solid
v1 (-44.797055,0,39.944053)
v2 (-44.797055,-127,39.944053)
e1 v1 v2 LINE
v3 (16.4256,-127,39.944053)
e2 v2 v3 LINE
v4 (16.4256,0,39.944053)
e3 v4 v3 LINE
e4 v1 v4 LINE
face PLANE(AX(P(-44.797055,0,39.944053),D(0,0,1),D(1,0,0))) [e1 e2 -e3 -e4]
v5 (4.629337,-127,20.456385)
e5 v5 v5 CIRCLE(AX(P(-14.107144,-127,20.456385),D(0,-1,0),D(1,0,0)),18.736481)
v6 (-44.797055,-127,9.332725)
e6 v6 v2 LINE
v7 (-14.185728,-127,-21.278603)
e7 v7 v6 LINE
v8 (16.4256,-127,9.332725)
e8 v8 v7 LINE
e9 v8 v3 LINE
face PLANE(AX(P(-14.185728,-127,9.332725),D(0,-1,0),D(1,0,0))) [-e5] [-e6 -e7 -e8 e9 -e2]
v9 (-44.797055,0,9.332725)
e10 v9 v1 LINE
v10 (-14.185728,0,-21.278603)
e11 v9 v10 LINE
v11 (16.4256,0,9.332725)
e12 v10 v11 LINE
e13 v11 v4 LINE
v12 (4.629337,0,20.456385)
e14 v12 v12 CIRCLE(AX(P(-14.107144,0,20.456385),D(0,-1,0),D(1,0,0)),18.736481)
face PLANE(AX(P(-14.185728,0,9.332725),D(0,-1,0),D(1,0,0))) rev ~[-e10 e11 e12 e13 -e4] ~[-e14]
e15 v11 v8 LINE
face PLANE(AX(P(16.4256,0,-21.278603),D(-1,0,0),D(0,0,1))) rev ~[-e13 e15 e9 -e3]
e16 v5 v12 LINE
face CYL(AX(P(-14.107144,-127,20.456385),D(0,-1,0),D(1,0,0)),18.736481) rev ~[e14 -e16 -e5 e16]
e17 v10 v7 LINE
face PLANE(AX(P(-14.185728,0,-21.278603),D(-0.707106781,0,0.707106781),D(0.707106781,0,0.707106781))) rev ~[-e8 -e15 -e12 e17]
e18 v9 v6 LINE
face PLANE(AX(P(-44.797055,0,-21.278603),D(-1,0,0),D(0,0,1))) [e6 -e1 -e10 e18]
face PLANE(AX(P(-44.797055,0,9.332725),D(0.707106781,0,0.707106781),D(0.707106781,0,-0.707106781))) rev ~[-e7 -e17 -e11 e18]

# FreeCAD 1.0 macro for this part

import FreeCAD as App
import Part
import Sketcher
from FreeCAD import Vector

doc = App.newDocument("Part")
params = doc.addObject("Spreadsheet::Sheet", "Params")
for row, (alias, value) in enumerate([
    ("pad1_length", "5 in"),
], start=1):
    params.set(f"A{row}", alias)
    params.set(f"B{row}", "=" + value)
    params.setAlias(f"B{row}", alias)

body = doc.addObject("PartDesign::Body", "Body")

sketch1 = doc.addObject("Sketcher::SketchObject", "Sketch")
body.addObject(sketch1)
sketch1.AttachmentSupport = (doc.XZ_Plane, [""])
sketch1.MapMode = "FlatFace"
sketch1.addGeometry([
    Part.LineSegment(Vector(-45, 40, 0), Vector(-45, -21, 0)),
    Part.LineSegment(Vector(-45, -21, 0), Vector(16, -21, 0)),
    Part.LineSegment(Vector(16, -21, 0), Vector(16, 40, 0)),
    Part.LineSegment(Vector(16, 40, 0), Vector(-45, 40, 0)),
], False)
sketch1.addConstraint([
    Sketcher.Constraint("Coincident", 0, 2, 1, 1),
    Sketcher.Constraint("Coincident", 1, 2, 2, 1),
    Sketcher.Constraint("Coincident", 2, 2, 3, 1),
    Sketcher.Constraint("Coincident", 3, 2, 0, 1),
    Sketcher.Constraint("Vertical", 0),
    Sketcher.Constraint("Horizontal", 1),
    Sketcher.Constraint("Vertical", 2),
    Sketcher.Constraint("Horizontal", 3),
    Sketcher.Constraint("Equal", 3, 0),
    Sketcher.Constraint("DistanceX", -1, 1, 1, 2, 16.4256),
    Sketcher.Constraint("DistanceX", 1, 1, 1, 2, 61.222656),
    Sketcher.Constraint("DistanceY", 0, 2, -1, 1, 21.278603),
])
pad1 = doc.addObject("PartDesign::Pad", "Pad")
body.addObject(pad1)
pad1.Profile = sketch1
pad1.setExpression("Length", "Params.pad1_length")

sketch2 = doc.addObject("Sketcher::SketchObject", "Sketch001")
body.addObject(sketch2)
sketch2.AttachmentSupport = (doc.XZ_Plane, [""])
sketch2.MapMode = "FlatFace"
sketch2.AttachmentOffset = App.Placement(Vector(0, 0, 5 * 25.4), App.Rotation())
sketch2.addGeometry(Part.Circle(Vector(-14, 20, 0), Vector(0, 0, 1), 19), False)
sketch2.addConstraint([
    Sketcher.Constraint("Diameter", 0, 37.472962),
    Sketcher.Constraint("DistanceX", 0, 3, -1, 1, 14.107144),
    Sketcher.Constraint("DistanceY", -1, 1, 0, 3, 20.456385),
])
pocket1 = doc.addObject("PartDesign::Pocket", "Pocket")
body.addObject(pocket1)
pocket1.Profile = sketch2
pocket1.Type = "ThroughAll"

sketch3 = doc.addObject("Sketcher::SketchObject", "Sketch002")
body.addObject(sketch3)
sketch3.AttachmentSupport = (doc.XZ_Plane, [""])
sketch3.MapMode = "FlatFace"
sketch3.addGeometry([
    Part.LineSegment(Vector(16, -21, 0), Vector(-14, -21, 0)),
    Part.LineSegment(Vector(-14, -21, 0), Vector(16, 9, 0)),
    Part.LineSegment(Vector(16, 9, 0), Vector(16, -21, 0)),
    Part.LineSegment(Vector(-45, 9, 0), Vector(-14, -21, 0)),
    Part.LineSegment(Vector(-14, -21, 0), Vector(-45, -21, 0)),
    Part.LineSegment(Vector(-45, -21, 0), Vector(-45, 9, 0)),
], False)
sketch3.addConstraint([
    Sketcher.Constraint("Coincident", 0, 2, 1, 1),
    Sketcher.Constraint("Coincident", 1, 2, 2, 1),
    Sketcher.Constraint("Coincident", 2, 2, 0, 1),
    Sketcher.Constraint("Coincident", 3, 2, 4, 1),
    Sketcher.Constraint("Coincident", 4, 2, 5, 1),
    Sketcher.Constraint("Coincident", 5, 2, 3, 1),
    Sketcher.Constraint("Horizontal", 0),
    Sketcher.Constraint("Vertical", 2),
    Sketcher.Constraint("Horizontal", 4),
    Sketcher.Constraint("Vertical", 5),
    Sketcher.Constraint("Coincident", 3, 2, 0, 2),
    Sketcher.Constraint("Perpendicular", 1, 3),
    Sketcher.Constraint("Horizontal", 1, 2, 5, 2),
    Sketcher.Constraint("Equal", 0, 4),
    Sketcher.Constraint("DistanceX", -1, 1, 1, 2, 16.4256),
    Sketcher.Constraint("DistanceX", 0, 2, 0, 1, 30.611328),
    Sketcher.Constraint("DistanceY", 0, 2, -1, 1, 21.278603),
])
pocket2 = doc.addObject("PartDesign::Pocket", "Pocket001")
body.addObject(pocket2)
pocket2.Profile = sketch3
pocket2.Type = "ThroughAll"
pocket2.Reversed = True

doc.recompute()
